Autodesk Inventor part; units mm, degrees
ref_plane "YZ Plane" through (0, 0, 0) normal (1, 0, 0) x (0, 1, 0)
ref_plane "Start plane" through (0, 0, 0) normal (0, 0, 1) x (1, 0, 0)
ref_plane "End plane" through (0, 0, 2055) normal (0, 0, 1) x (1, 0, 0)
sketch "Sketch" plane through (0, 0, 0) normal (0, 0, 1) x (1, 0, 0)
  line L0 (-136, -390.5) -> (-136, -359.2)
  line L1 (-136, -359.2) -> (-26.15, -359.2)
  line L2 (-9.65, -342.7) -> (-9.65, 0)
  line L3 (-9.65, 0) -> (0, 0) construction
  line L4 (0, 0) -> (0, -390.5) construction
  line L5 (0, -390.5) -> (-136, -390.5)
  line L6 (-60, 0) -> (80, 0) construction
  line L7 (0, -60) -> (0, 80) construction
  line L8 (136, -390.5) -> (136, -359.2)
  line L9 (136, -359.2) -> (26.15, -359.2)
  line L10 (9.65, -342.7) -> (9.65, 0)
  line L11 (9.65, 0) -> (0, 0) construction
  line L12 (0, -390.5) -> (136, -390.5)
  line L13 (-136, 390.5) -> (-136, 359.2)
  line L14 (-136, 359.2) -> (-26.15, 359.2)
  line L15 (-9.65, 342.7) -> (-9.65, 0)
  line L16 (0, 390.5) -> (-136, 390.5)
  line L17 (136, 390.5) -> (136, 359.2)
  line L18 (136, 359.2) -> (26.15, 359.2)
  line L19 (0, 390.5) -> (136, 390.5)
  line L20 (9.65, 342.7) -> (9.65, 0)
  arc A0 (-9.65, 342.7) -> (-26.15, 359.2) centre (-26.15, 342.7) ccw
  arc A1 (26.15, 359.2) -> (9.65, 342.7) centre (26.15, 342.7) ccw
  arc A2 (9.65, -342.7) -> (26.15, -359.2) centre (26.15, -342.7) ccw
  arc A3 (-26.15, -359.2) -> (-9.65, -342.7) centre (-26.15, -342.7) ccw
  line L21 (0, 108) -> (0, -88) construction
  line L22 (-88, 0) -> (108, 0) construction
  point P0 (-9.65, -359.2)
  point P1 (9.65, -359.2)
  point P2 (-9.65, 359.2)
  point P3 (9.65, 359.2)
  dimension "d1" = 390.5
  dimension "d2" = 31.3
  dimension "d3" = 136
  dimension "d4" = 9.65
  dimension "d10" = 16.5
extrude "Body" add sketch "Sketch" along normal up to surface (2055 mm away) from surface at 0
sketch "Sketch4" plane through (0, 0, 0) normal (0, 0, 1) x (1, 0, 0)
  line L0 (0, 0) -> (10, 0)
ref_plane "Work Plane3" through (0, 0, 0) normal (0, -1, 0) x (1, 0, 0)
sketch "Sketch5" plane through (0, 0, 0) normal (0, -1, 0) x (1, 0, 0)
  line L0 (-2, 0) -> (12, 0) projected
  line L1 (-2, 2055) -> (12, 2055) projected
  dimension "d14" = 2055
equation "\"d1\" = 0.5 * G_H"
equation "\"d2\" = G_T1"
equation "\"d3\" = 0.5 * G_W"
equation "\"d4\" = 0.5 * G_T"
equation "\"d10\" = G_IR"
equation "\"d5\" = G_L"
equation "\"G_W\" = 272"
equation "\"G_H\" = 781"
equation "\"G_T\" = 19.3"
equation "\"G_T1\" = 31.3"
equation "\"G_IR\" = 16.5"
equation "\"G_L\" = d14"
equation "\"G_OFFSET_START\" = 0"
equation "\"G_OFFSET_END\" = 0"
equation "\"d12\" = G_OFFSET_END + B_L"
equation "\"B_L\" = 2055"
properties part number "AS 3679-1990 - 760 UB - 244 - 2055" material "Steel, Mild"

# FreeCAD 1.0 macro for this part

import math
import FreeCAD as App
import Part
import Sketcher

V = App.Vector

doc = App.newDocument("Part")
body = doc.addObject("PartDesign::Body", "Body")

sketch1 = body.newObject("Sketcher::SketchObject", "Sketch")
sketch1.AttachmentSupport = (doc.getObject("XY_Plane"), [""])
sketch1.MapMode = "FlatFace"
sketch1.addGeometry(Part.LineSegment(V(-136, -359.2, 0), V(-136, -390.5, 0)), False)
sketch1.addGeometry(Part.LineSegment(V(-136, -390.5, 0), V(136, -390.5, 0)), False)
sketch1.addGeometry(Part.LineSegment(V(136, -390.5, 0), V(136, -359.2, 0)), False)
sketch1.addGeometry(Part.LineSegment(V(136, -359.2, 0), V(26.15, -359.2, 0)), False)
sketch1.addGeometry(Part.ArcOfCircle(Part.Circle(V(26.15, -342.7, 0), V(0, 0, 1), 16.5), math.radians(180), math.radians(270)), False)
sketch1.addGeometry(Part.LineSegment(V(9.65, -342.7, 0), V(9.65, 342.7, 0)), False)
sketch1.addGeometry(Part.ArcOfCircle(Part.Circle(V(26.15, 342.7, 0), V(0, 0, 1), 16.5), math.radians(90), math.radians(180)), False)
sketch1.addGeometry(Part.LineSegment(V(26.15, 359.2, 0), V(136, 359.2, 0)), False)
sketch1.addGeometry(Part.LineSegment(V(136, 359.2, 0), V(136, 390.5, 0)), False)
sketch1.addGeometry(Part.LineSegment(V(136, 390.5, 0), V(-136, 390.5, 0)), False)
sketch1.addGeometry(Part.LineSegment(V(-136, 390.5, 0), V(-136, 359.2, 0)), False)
sketch1.addGeometry(Part.LineSegment(V(-136, 359.2, 0), V(-26.15, 359.2, 0)), False)
sketch1.addGeometry(Part.ArcOfCircle(Part.Circle(V(-26.15, 342.7, 0), V(0, 0, 1), 16.5), math.radians(0), math.radians(90)), False)
sketch1.addGeometry(Part.LineSegment(V(-9.65, 342.7, 0), V(-9.65, -342.7, 0)), False)
sketch1.addGeometry(Part.ArcOfCircle(Part.Circle(V(-26.15, -342.7, 0), V(0, 0, 1), 16.5), math.radians(-90), math.radians(0)), False)
sketch1.addGeometry(Part.LineSegment(V(-26.15, -359.2, 0), V(-136, -359.2, 0)), False)
sketch1.addConstraint(Sketcher.Constraint("Coincident", 0, 2, 1, 1))
sketch1.addConstraint(Sketcher.Constraint("Coincident", 1, 2, 2, 1))
sketch1.addConstraint(Sketcher.Constraint("Coincident", 2, 2, 3, 1))
sketch1.addConstraint(Sketcher.Constraint("Tangent", 3, 2, 4, 2))
sketch1.addConstraint(Sketcher.Constraint("Tangent", 4, 1, 5, 1))
sketch1.addConstraint(Sketcher.Constraint("Tangent", 5, 2, 6, 2))
sketch1.addConstraint(Sketcher.Constraint("Tangent", 6, 1, 7, 1))
sketch1.addConstraint(Sketcher.Constraint("Coincident", 7, 2, 8, 1))
sketch1.addConstraint(Sketcher.Constraint("Coincident", 8, 2, 9, 1))
sketch1.addConstraint(Sketcher.Constraint("Coincident", 9, 2, 10, 1))
sketch1.addConstraint(Sketcher.Constraint("Coincident", 10, 2, 11, 1))
sketch1.addConstraint(Sketcher.Constraint("Tangent", 11, 2, 12, 2))
sketch1.addConstraint(Sketcher.Constraint("Tangent", 12, 1, 13, 1))
sketch1.addConstraint(Sketcher.Constraint("Tangent", 13, 2, 14, 2))
sketch1.addConstraint(Sketcher.Constraint("Tangent", 14, 1, 15, 1))
sketch1.addConstraint(Sketcher.Constraint("Coincident", 15, 2, 0, 1))
sketch1.addConstraint(Sketcher.Constraint("Vertical", 0))
sketch1.addConstraint(Sketcher.Constraint("Horizontal", 1))
sketch1.addConstraint(Sketcher.Constraint("Vertical", 2))
sketch1.addConstraint(Sketcher.Constraint("Horizontal", 3))
sketch1.addConstraint(Sketcher.Constraint("Vertical", 5))
sketch1.addConstraint(Sketcher.Constraint("Horizontal", 7))
sketch1.addConstraint(Sketcher.Constraint("Vertical", 8))
sketch1.addConstraint(Sketcher.Constraint("Horizontal", 9))
sketch1.addConstraint(Sketcher.Constraint("Vertical", 10))
sketch1.addConstraint(Sketcher.Constraint("Horizontal", 11))
sketch1.addConstraint(Sketcher.Constraint("Vertical", 13))
sketch1.addConstraint(Sketcher.Constraint("Horizontal", 15))
sketch1.addConstraint(Sketcher.Constraint("Equal", 4, 6))
sketch1.addConstraint(Sketcher.Constraint("Equal", 6, 12))
sketch1.addConstraint(Sketcher.Constraint("Equal", 12, 14))
sketch1.addConstraint(Sketcher.Constraint("Symmetric", 4, 3, 12, 3, -1, 1))
sketch1.addConstraint(Sketcher.Constraint("Symmetric", 0, 2, 8, 2, -1, 1))
sketch1.addConstraint(Sketcher.Constraint("Symmetric", 7, 2, 10, 2, -2))
sketch1.addConstraint(Sketcher.Constraint("Symmetric", 2, 2, 15, 2, -2))
sketch1.addConstraint(Sketcher.Constraint("Radius", 4, 16.5))
sketch1.addConstraint(Sketcher.Constraint("DistanceY", 0, 2, 0, 1, 31.3))
sketch1.addConstraint(Sketcher.Constraint("DistanceX", 0, 2, -1, 1, 136.0))
sketch1.addConstraint(Sketcher.Constraint("DistanceY", 0, 2, -1, 1, 390.5))
sketch1.addConstraint(Sketcher.Constraint("DistanceX", -1, 1, 4, 1, 9.65))
pad1 = body.newObject("PartDesign::Pad", "Pad")
pad1.Profile = sketch1
pad1.Length = 2055

doc.recompute()
